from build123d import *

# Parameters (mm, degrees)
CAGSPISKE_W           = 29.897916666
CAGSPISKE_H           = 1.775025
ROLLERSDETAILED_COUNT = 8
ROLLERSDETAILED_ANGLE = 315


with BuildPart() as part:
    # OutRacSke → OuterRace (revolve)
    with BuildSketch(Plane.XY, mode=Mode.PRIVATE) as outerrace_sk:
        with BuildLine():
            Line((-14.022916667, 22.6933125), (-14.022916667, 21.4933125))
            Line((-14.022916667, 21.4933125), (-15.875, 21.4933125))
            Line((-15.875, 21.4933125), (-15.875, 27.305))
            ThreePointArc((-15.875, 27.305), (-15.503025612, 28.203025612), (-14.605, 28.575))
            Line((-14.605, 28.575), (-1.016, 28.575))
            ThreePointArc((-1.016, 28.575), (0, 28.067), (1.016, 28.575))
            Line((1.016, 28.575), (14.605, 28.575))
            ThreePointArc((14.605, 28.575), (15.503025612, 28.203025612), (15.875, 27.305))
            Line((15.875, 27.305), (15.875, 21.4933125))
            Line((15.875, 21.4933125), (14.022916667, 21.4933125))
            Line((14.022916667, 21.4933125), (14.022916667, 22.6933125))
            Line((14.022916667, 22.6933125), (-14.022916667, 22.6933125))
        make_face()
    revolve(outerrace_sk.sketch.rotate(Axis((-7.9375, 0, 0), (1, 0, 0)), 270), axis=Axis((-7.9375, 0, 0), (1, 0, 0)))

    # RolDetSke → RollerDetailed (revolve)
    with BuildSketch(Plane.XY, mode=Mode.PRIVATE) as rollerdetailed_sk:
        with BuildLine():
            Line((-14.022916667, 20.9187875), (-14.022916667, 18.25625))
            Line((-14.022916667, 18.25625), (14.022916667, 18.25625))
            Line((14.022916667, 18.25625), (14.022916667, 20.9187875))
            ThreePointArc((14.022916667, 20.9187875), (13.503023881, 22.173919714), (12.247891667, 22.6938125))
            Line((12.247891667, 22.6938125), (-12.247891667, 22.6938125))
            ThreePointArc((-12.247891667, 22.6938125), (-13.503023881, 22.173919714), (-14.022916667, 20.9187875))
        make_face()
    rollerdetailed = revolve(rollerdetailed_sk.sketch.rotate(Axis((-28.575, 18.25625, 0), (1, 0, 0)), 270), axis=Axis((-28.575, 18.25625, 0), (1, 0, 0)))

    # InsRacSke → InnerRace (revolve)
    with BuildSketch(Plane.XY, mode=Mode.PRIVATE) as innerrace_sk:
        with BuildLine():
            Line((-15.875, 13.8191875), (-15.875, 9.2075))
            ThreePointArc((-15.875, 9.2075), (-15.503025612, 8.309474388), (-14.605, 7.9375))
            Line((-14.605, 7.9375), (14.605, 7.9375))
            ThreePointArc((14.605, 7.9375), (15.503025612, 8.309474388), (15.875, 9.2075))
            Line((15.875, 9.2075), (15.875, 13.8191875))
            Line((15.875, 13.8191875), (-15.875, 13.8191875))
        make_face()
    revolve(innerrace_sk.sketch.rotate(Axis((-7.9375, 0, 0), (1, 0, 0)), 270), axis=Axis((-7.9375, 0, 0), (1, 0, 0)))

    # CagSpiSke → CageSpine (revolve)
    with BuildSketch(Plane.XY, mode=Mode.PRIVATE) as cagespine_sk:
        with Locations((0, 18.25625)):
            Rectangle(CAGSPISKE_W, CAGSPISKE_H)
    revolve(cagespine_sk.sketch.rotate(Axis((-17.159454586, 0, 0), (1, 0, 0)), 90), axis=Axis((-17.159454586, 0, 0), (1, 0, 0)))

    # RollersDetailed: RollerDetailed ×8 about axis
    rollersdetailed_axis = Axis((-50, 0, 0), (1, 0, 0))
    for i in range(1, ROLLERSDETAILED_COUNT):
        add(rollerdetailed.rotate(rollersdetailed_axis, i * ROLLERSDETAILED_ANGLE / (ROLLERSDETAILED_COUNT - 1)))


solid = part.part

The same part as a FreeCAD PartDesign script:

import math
import FreeCAD as App
import Part
import Sketcher
from FreeCAD import Vector
Q = App.Units.Quantity


def add_polygon(sketch, points):
    """Adds a closed chain of lines whose ends are joined by coincident constraints."""
    first, n = sketch.GeometryCount, len(points)
    for a, b in zip(points, points[1:] + points[:1]):
        sketch.addGeometry(Part.LineSegment(App.Vector(*a, 0), App.Vector(*b, 0)), False)
    for i in range(n):
        sketch.addConstraint(Sketcher.Constraint("Coincident", first + i, 2, first + (i + 1) % n, 1))

doc = App.newDocument("Part")
params = doc.addObject("Spreadsheet::Sheet", "Params")
for row, (alias, value) in enumerate([
    ("sketch1_radius", "0.05 in"),
    ("sketch1_width", "0.535 in"),
    ("revolution_angle", "360 deg"),
    ("revolution2_angle", "360 deg"),
    ("sketch3_radius", "0.05 in"),
    ("sketch3_width", "1.15 in"),
    ("revolution3_angle", "360 deg"),
    ("revolution4_angle", "360 deg"),
], start=1):
    params.set(f"A{row}", alias)
    params.set(f"B{row}", "=" + value)
    params.setAlias(f"B{row}", alias)

body = doc.addObject("PartDesign::Body", "Body")

# Sketch on XY plane
sketch1 = doc.addObject("Sketcher::SketchObject", "Sketch")
body.addObject(sketch1)
sketch1.AttachmentSupport = (doc.XY_Plane, [""])
sketch1.MapMode = "FlatFace"
sketch1.addGeometry([
    Part.LineSegment(Vector(-14.022917, 21.493312, 0), Vector(-14.022917, 22.693313, 0)),  # 0
    Part.LineSegment(Vector(-14.022917, 22.693313, 0), Vector(14.022917, 22.693313, 0)),  # 1
    Part.LineSegment(Vector(14.022917, 22.693313, 0), Vector(14.022917, 21.493312, 0)),  # 2
    Part.LineSegment(Vector(14.022917, 21.493312, 0), Vector(15.875, 21.493312, 0)),  # 3
    Part.LineSegment(Vector(15.875, 21.493312, 0), Vector(15.875, 27.305, 0)),  # 4
    Part.ArcOfCircle(Part.Circle(Vector(14.605, 27.305, 0), Vector(0, 0, 1), 1.27), math.radians(0), math.radians(90)),  # 5
    Part.LineSegment(Vector(14.605, 28.575, 0), Vector(1.016, 28.575, 0)),  # 6
    Part.ArcOfCircle(Part.Circle(Vector(0, 29.337, 0), Vector(0, 0, 1), 1.27), math.radians(-143.130102), math.radians(-36.869898)),  # 7
    Part.LineSegment(Vector(-1.016, 28.575, 0), Vector(-14.605, 28.575, 0)),  # 8
    Part.ArcOfCircle(Part.Circle(Vector(-14.605, 27.305, 0), Vector(0, 0, 1), 1.27), math.radians(90), math.radians(180)),  # 9
    Part.LineSegment(Vector(-15.875, 27.305, 0), Vector(-15.875, 21.493312, 0)),  # 10
    Part.LineSegment(Vector(-15.875, 21.493312, 0), Vector(-14.022917, 21.493312, 0)),  # 11
], False)
sketch1.addConstraint([
    Sketcher.Constraint("Coincident", 0, 2, 1, 1),
    Sketcher.Constraint("Coincident", 1, 2, 2, 1),
    Sketcher.Constraint("Coincident", 2, 2, 3, 1),
    Sketcher.Constraint("Coincident", 3, 2, 4, 1),
    Sketcher.Constraint("Tangent", 4, 2, 5, 1),
    Sketcher.Constraint("Tangent", 5, 2, 6, 1),
    Sketcher.Constraint("Coincident", 6, 2, 7, 2),
    Sketcher.Constraint("Coincident", 7, 1, 8, 1),
    Sketcher.Constraint("Tangent", 8, 2, 9, 1),
    Sketcher.Constraint("Tangent", 9, 2, 10, 1),
    Sketcher.Constraint("Coincident", 10, 2, 11, 1),
    Sketcher.Constraint("Coincident", 11, 2, 0, 1),
    Sketcher.Constraint("Vertical", 0),
    Sketcher.Constraint("Horizontal", 1),
    Sketcher.Constraint("Vertical", 2),
    Sketcher.Constraint("Horizontal", 3),
    Sketcher.Constraint("Vertical", 4),
    Sketcher.Constraint("Horizontal", 6),
    Sketcher.Constraint("Horizontal", 8),
    Sketcher.Constraint("Vertical", 10),
    Sketcher.Constraint("Horizontal", 11),
    Sketcher.Constraint("Equal", 5, 7),
    Sketcher.Constraint("Equal", 7, 9),
    Sketcher.Constraint("Symmetric", 5, 3, 9, 3, -2),
    Sketcher.Constraint("Symmetric", 2, 2, 11, 2, -2),
    Sketcher.Constraint("PointOnObject", 7, 3, -2),
    Sketcher.Constraint("Radius", 5, Q("0.05 in")),
    Sketcher.Constraint("DistanceX", 6, 2, 6, 1, Q("0.535 in")),
    Sketcher.Constraint("DistanceX", -1, 1, 6, 2, Q("0.04 in")),
    Sketcher.Constraint("DistanceY", -1, 1, 5, 3, Q("1.075 in")),
    Sketcher.Constraint("DistanceY", 0, 1, 0, 2, 1.2),
    Sketcher.Constraint("DistanceX", 1, 1, 1, 2, 28.045833),
    Sketcher.Constraint("DistanceY", 4, 1, 4, 2, 5.811688),
])
sketch1.setExpression("Constraints[26]", "Params.sketch1_radius")
sketch1.setExpression("Constraints[27]", "Params.sketch1_width")
revolution = doc.addObject("PartDesign::Revolution", "Revolution")
body.addObject(revolution)
revolution.Profile = sketch1
revolution.ReferenceAxis = (sketch1, ["H_Axis"])
revolution.setExpression("Angle", "Params.revolution_angle")

# Sketch on XY plane
sketch2 = doc.addObject("Sketcher::SketchObject", "Sketch001")
body.addObject(sketch2)
sketch2.AttachmentSupport = (doc.XY_Plane, [""])
sketch2.MapMode = "FlatFace"
sketch2.addGeometry([
    Part.LineSegment(Vector(-14.022917, 20.918788, 0), Vector(-14.022917, 18.25625, 0)),  # 0
    Part.LineSegment(Vector(-14.022917, 18.25625, 0), Vector(14.022917, 18.25625, 0)),  # 1
    Part.LineSegment(Vector(14.022917, 18.25625, 0), Vector(14.022917, 20.918788, 0)),  # 2
    Part.ArcOfCircle(Part.Circle(Vector(12.247892, 20.918787, 0), Vector(0, 0, 1), 1.775025), math.radians(0), math.radians(90)),  # 3
    Part.LineSegment(Vector(12.247892, 22.693812, 0), Vector(-12.247892, 22.693812, 0)),  # 4
    Part.ArcOfCircle(Part.Circle(Vector(-12.247892, 20.918787, 0), Vector(0, 0, 1), 1.775025), math.radians(90), math.radians(180)),  # 5
], False)
sketch2.addGeometry(Part.LineSegment(Vector(-14.022917, 18.25625, 0), Vector(14.022917, 18.25625, 0)), True)  # axis
sketch2.addConstraint([
    Sketcher.Constraint("Coincident", 0, 2, 1, 1),
    Sketcher.Constraint("Coincident", 1, 2, 2, 1),
    Sketcher.Constraint("Tangent", 2, 2, 3, 1),
    Sketcher.Constraint("Tangent", 3, 2, 4, 1),
    Sketcher.Constraint("Tangent", 4, 2, 5, 1),
    Sketcher.Constraint("Tangent", 5, 2, 0, 1),
    Sketcher.Constraint("Vertical", 0),
    Sketcher.Constraint("Horizontal", 1),
    Sketcher.Constraint("Vertical", 2),
    Sketcher.Constraint("Horizontal", 4),
    Sketcher.Constraint("Horizontal", 6),
    Sketcher.Constraint("Coincident", 6, 1, 0, 2),
    Sketcher.Constraint("Equal", 3, 5),
    Sketcher.Constraint("Vertical", 2, 2, 6, 2),
    Sketcher.Constraint("DistanceY", -1, 1, 0, 2, Q("0.71875 in")),
    Sketcher.Constraint("Radius", 3, 1.775025),
    Sketcher.Constraint("DistanceX", 1, 1, 1, 2, 28.045833),
    Sketcher.Constraint("DistanceY", 0, 2, 0, 1, 2.662537),
    Sketcher.Constraint("DistanceX", -1, 1, 3, 3, 12.247892),
])
revolution2 = doc.addObject("PartDesign::Revolution", "Revolution001")
body.addObject(revolution2)
revolution2.Profile = sketch2
revolution2.ReferenceAxis = (sketch2, ["Axis0"])
revolution2.setExpression("Angle", "Params.revolution2_angle")

# Sketch on XY plane
sketch3 = doc.addObject("Sketcher::SketchObject", "Sketch002")
body.addObject(sketch3)
sketch3.AttachmentSupport = (doc.XY_Plane, [""])
sketch3.MapMode = "FlatFace"
sketch3.addGeometry([
    Part.LineSegment(Vector(-15.875, 13.819187, 0), Vector(-15.875, 9.2075, 0)),  # 0
    Part.ArcOfCircle(Part.Circle(Vector(-14.605, 9.2075, 0), Vector(0, 0, 1), 1.27), math.radians(180), math.radians(270)),  # 1
    Part.LineSegment(Vector(-14.605, 7.9375, 0), Vector(14.605, 7.9375, 0)),  # 2
    Part.ArcOfCircle(Part.Circle(Vector(14.605, 9.2075, 0), Vector(0, 0, 1), 1.27), math.radians(-90), math.radians(0)),  # 3
    Part.LineSegment(Vector(15.875, 9.2075, 0), Vector(15.875, 13.819187, 0)),  # 4
    Part.LineSegment(Vector(15.875, 13.819187, 0), Vector(-15.875, 13.819187, 0)),  # 5
], False)
sketch3.addConstraint([
    Sketcher.Constraint("Tangent", 0, 2, 1, 1),
    Sketcher.Constraint("Tangent", 1, 2, 2, 1),
    Sketcher.Constraint("Tangent", 2, 2, 3, 1),
    Sketcher.Constraint("Tangent", 3, 2, 4, 1),
    Sketcher.Constraint("Coincident", 4, 2, 5, 1),
    Sketcher.Constraint("Coincident", 5, 2, 0, 1),
    Sketcher.Constraint("Vertical", 0),
    Sketcher.Constraint("Horizontal", 2),
    Sketcher.Constraint("Vertical", 4),
    Sketcher.Constraint("Horizontal", 5),
    Sketcher.Constraint("Equal", 1, 3),
    Sketcher.Constraint("Radius", 1, Q("0.05 in")),
    Sketcher.Constraint("DistanceX", 2, 1, 2, 2, Q("1.15 in")),
    Sketcher.Constraint("DistanceX", 1, 3, -1, 1, Q("0.575 in")),
    Sketcher.Constraint("DistanceY", -1, 1, 1, 2, Q("0.3125 in")),
    Sketcher.Constraint("DistanceY", 0, 2, 0, 1, 4.611688),
])
sketch3.setExpression("Constraints[11]", "Params.sketch3_radius")
sketch3.setExpression("Constraints[12]", "Params.sketch3_width")
revolution3 = doc.addObject("PartDesign::Revolution", "Revolution002")
body.addObject(revolution3)
revolution3.Profile = sketch3
revolution3.ReferenceAxis = (sketch3, ["H_Axis"])
revolution3.setExpression("Angle", "Params.revolution3_angle")

# Sketch on XY plane
sketch4 = doc.addObject("Sketcher::SketchObject", "Sketch003")
body.addObject(sketch4)
sketch4.AttachmentSupport = (doc.XY_Plane, [""])
sketch4.MapMode = "FlatFace"
add_polygon(sketch4, [(-14.948958, 19.143763), (-14.948958, 17.368738), (14.948958, 17.368738), (14.948958, 19.143763)])  # lines 0-3
sketch4.addConstraint([
    Sketcher.Constraint("Vertical", 0),
    Sketcher.Constraint("Horizontal", 1),
    Sketcher.Constraint("Vertical", 2),
    Sketcher.Constraint("Horizontal", 3),
    Sketcher.Constraint("DistanceX", 1, 1, 1, 2, 29.897917),
    Sketcher.Constraint("DistanceY", 0, 2, 0, 1, 1.775025),
    Sketcher.Constraint("DistanceX", 0, 2, -1, 1, 14.948958),
    Sketcher.Constraint("DistanceY", -1, 1, 0, 2, 17.368738),
])
revolution4 = doc.addObject("PartDesign::Revolution", "Revolution003")
body.addObject(revolution4)
revolution4.Profile = sketch4
revolution4.ReferenceAxis = (sketch4, ["H_Axis"])
revolution4.setExpression("Angle", "Params.revolution4_angle")
doc.recompute()

polarpattern = doc.addObject("PartDesign::PolarPattern", "PolarPattern")
body.addObject(polarpattern)
polarpattern.Originals = [revolution2]
polarpattern.Axis = (doc.X_Axis, [""])
polarpattern.Angle = 360
polarpattern.Occurrences = 8
body.Tip = polarpattern

doc.recompute()
